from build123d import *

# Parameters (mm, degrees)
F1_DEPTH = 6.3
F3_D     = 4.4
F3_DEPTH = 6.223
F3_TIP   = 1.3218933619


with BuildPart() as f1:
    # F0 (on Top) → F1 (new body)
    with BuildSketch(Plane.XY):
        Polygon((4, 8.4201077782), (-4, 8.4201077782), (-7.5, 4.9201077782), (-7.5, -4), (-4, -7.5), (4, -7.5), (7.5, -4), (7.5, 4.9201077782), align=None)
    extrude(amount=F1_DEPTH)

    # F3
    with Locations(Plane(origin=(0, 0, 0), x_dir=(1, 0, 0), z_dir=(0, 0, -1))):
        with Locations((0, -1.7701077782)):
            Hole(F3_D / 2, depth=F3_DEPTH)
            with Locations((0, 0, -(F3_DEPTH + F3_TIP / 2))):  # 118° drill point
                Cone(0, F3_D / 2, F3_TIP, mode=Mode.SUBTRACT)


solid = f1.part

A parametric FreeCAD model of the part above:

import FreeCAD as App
import Part
import Sketcher

V = App.Vector
Q = App.Units.Quantity


def add_polygon(sketch, points):
    """Adds a closed chain of lines whose ends are joined by coincident constraints."""
    first, n = sketch.GeometryCount, len(points)
    for a, b in zip(points, points[1:] + points[:1]):
        sketch.addGeometry(Part.LineSegment(App.Vector(*a, 0), App.Vector(*b, 0)), False)
    for i in range(n):
        sketch.addConstraint(Sketcher.Constraint("Coincident", first + i, 2, first + (i + 1) % n, 1))

doc = App.newDocument("Part")
body = doc.addObject("PartDesign::Body", "Body")

# Sketch on XY plane
sketch1 = body.newObject("Sketcher::SketchObject", "Sketch")
sketch1.AttachmentSupport = (doc.getObject("XY_Plane"), [""])
sketch1.MapMode = "FlatFace"
add_polygon(sketch1, [(4, 8.420108), (-4, 8.420108), (-7.5, 4.920108), (-7.5, -4), (-4, -7.5), (4, -7.5), (7.5, -4), (7.5, 4.920108)])  # lines 0-7
sketch1.addConstraint([
    Sketcher.Constraint("Horizontal", 0),
    Sketcher.Constraint("Vertical", 2),
    Sketcher.Constraint("Horizontal", 4),
    Sketcher.Constraint("Vertical", 6),
    Sketcher.Constraint("Symmetric", 2, 2, 5, 2, -2),
    Sketcher.Constraint("Perpendicular", 1, 3),
    Sketcher.Constraint("Perpendicular", 3, 5),
    Sketcher.Constraint("Perpendicular", 5, 7),
    Sketcher.Constraint("Horizontal", 1, 2, 6, 2),
    Sketcher.Constraint("Vertical", 0, 2, 3, 2),
    Sketcher.Constraint("Vertical", 4, 2, 7, 2),
    Sketcher.Constraint("DistanceX", 0, 2, 0, 1, Q("8 mm")),
    Sketcher.Constraint("DistanceY", 2, 2, -1, 1, Q("4 mm")),
    Sketcher.Constraint("DistanceX", 2, 2, 5, 2, Q("15 mm")),
    Sketcher.Constraint("DistanceY", 2, 2, 2, 1, Q("8.920108 mm")),
])
pad1 = body.newObject("PartDesign::Pad", "Pad")
pad1.Profile = sketch1
pad1.Length = 6.3

# Sketch on XY plane
sketch2 = body.newObject("Sketcher::SketchObject", "Sketch001")
sketch2.AttachmentSupport = (doc.getObject("XY_Plane"), [""])
sketch2.MapMode = "FlatFace"
sketch2.addGeometry(Part.Circle(V(0, 1.770108, 0), V(0, 0, 1), 2.2), False)
sketch2.addConstraint([
    Sketcher.Constraint("PointOnObject", 0, 3, -2),
    Sketcher.Constraint("Diameter", 0, Q("4.4 mm")),
    Sketcher.Constraint("DistanceY", -1, 1, 0, 3, Q("1.770108 mm")),
])
doc.recompute()
hole = body.newObject("PartDesign::Hole", "Hole")
hole.Profile = sketch2
hole.ThreadType = "None"
hole.Diameter = 4.4
hole.DepthType = "Dimension"
hole.Depth = 6.223
hole.DrillPoint = "Angled"
hole.DrillPointAngle = 118
hole.Reversed = True

doc.recompute()
